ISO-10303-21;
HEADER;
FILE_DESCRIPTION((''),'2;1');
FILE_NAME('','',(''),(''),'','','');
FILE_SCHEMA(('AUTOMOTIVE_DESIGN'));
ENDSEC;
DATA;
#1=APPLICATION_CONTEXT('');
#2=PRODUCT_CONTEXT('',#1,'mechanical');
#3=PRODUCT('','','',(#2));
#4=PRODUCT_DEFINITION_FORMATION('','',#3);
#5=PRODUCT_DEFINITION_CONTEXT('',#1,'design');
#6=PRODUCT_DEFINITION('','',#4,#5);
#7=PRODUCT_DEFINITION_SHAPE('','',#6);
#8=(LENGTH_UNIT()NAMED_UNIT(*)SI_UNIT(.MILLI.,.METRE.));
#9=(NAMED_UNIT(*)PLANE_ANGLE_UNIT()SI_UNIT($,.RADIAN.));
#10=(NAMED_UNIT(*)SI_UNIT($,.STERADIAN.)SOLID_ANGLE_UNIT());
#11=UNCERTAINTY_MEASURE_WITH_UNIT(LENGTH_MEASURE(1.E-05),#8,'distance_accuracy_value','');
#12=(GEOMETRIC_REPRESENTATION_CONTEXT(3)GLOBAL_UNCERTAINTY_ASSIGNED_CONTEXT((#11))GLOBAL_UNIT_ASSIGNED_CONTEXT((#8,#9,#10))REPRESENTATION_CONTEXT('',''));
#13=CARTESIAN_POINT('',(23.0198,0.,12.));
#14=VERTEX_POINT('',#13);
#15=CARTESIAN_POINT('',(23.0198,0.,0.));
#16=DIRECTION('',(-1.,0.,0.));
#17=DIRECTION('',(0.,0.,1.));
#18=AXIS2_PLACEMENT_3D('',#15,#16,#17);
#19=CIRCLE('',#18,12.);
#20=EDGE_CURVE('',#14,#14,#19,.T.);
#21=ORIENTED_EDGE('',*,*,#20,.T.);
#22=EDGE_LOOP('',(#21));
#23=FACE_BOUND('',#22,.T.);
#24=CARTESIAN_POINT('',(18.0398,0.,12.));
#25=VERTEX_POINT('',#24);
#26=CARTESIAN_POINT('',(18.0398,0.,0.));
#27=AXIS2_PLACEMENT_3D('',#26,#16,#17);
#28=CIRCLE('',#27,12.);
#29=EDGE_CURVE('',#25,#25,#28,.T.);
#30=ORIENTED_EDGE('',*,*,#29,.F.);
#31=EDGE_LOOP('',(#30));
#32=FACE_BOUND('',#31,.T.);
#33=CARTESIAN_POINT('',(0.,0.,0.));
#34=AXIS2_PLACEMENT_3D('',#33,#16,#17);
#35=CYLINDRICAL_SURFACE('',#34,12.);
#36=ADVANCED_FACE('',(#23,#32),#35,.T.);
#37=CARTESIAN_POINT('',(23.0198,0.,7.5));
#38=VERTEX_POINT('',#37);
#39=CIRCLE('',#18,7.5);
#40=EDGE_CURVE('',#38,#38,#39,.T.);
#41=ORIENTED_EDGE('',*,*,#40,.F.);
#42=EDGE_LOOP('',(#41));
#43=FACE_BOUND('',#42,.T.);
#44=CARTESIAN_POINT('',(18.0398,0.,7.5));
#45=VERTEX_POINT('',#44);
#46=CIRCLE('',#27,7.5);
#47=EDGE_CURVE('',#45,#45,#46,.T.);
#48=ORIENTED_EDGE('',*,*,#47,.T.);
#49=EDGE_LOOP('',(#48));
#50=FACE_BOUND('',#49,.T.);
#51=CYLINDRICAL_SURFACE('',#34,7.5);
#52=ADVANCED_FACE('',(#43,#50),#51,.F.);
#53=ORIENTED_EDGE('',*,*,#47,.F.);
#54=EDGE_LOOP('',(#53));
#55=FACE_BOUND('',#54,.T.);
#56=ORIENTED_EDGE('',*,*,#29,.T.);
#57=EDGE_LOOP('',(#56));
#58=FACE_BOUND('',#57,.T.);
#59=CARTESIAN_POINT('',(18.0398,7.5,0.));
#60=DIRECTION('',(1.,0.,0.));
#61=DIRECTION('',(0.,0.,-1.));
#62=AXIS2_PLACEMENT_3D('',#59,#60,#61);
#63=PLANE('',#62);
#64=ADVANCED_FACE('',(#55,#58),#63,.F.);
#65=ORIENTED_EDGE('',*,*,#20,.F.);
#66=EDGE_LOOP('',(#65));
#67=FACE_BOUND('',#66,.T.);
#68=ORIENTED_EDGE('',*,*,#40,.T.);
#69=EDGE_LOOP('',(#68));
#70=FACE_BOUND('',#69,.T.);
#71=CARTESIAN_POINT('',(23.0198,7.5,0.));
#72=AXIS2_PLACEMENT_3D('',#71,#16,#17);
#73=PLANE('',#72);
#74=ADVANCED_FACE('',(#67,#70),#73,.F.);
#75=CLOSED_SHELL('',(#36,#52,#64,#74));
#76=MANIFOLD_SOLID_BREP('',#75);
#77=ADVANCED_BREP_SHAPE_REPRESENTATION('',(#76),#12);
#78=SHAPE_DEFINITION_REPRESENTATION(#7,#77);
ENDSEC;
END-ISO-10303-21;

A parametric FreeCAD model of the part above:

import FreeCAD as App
import Part
import Sketcher
from FreeCAD import Vector
Q = App.Units.Quantity

doc = App.newDocument("Part")
body = doc.addObject("PartDesign::Body", "Body")

# Sketch on XY plane
sketch1 = body.newObject("Sketcher::SketchObject", "Sketch")
sketch1.AttachmentSupport = (doc.getObject("XY_Plane"), [""])
sketch1.MapMode = "FlatFace"
sketch1.addGeometry([
    Part.LineSegment(Vector(18, 12, 0), Vector(18, 7.5, 0)),
    Part.LineSegment(Vector(18, 7.5, 0), Vector(23, 7.5, 0)),
    Part.LineSegment(Vector(23, 7.5, 0), Vector(23, 12, 0)),
    Part.LineSegment(Vector(23, 12, 0), Vector(18, 12, 0)),
], False)
sketch1.addConstraint([
    Sketcher.Constraint("Coincident", 0, 2, 1, 1),
    Sketcher.Constraint("Coincident", 1, 2, 2, 1),
    Sketcher.Constraint("Coincident", 2, 2, 3, 1),
    Sketcher.Constraint("Coincident", 3, 2, 0, 1),
    Sketcher.Constraint("Vertical", 0),
    Sketcher.Constraint("Horizontal", 1),
    Sketcher.Constraint("Vertical", 2),
    Sketcher.Constraint("Horizontal", 3),
    Sketcher.Constraint("DistanceY", 0, 2, 0, 1, Q("4.5 mm")),
    Sketcher.Constraint("DistanceY", -1, 1, 2, 2, Q("12 mm")),
    Sketcher.Constraint("DistanceX", 1, 1, 1, 2, Q("4.98 mm")),
    Sketcher.Constraint("DistanceX", -1, 1, 0, 2, Q("18.0398 mm")),
])
revolution = body.newObject("PartDesign::Revolution", "Revolution")
revolution.Profile = sketch1
revolution.ReferenceAxis = (sketch1, ["H_Axis"])
revolution.Angle = 360

doc.recompute()
